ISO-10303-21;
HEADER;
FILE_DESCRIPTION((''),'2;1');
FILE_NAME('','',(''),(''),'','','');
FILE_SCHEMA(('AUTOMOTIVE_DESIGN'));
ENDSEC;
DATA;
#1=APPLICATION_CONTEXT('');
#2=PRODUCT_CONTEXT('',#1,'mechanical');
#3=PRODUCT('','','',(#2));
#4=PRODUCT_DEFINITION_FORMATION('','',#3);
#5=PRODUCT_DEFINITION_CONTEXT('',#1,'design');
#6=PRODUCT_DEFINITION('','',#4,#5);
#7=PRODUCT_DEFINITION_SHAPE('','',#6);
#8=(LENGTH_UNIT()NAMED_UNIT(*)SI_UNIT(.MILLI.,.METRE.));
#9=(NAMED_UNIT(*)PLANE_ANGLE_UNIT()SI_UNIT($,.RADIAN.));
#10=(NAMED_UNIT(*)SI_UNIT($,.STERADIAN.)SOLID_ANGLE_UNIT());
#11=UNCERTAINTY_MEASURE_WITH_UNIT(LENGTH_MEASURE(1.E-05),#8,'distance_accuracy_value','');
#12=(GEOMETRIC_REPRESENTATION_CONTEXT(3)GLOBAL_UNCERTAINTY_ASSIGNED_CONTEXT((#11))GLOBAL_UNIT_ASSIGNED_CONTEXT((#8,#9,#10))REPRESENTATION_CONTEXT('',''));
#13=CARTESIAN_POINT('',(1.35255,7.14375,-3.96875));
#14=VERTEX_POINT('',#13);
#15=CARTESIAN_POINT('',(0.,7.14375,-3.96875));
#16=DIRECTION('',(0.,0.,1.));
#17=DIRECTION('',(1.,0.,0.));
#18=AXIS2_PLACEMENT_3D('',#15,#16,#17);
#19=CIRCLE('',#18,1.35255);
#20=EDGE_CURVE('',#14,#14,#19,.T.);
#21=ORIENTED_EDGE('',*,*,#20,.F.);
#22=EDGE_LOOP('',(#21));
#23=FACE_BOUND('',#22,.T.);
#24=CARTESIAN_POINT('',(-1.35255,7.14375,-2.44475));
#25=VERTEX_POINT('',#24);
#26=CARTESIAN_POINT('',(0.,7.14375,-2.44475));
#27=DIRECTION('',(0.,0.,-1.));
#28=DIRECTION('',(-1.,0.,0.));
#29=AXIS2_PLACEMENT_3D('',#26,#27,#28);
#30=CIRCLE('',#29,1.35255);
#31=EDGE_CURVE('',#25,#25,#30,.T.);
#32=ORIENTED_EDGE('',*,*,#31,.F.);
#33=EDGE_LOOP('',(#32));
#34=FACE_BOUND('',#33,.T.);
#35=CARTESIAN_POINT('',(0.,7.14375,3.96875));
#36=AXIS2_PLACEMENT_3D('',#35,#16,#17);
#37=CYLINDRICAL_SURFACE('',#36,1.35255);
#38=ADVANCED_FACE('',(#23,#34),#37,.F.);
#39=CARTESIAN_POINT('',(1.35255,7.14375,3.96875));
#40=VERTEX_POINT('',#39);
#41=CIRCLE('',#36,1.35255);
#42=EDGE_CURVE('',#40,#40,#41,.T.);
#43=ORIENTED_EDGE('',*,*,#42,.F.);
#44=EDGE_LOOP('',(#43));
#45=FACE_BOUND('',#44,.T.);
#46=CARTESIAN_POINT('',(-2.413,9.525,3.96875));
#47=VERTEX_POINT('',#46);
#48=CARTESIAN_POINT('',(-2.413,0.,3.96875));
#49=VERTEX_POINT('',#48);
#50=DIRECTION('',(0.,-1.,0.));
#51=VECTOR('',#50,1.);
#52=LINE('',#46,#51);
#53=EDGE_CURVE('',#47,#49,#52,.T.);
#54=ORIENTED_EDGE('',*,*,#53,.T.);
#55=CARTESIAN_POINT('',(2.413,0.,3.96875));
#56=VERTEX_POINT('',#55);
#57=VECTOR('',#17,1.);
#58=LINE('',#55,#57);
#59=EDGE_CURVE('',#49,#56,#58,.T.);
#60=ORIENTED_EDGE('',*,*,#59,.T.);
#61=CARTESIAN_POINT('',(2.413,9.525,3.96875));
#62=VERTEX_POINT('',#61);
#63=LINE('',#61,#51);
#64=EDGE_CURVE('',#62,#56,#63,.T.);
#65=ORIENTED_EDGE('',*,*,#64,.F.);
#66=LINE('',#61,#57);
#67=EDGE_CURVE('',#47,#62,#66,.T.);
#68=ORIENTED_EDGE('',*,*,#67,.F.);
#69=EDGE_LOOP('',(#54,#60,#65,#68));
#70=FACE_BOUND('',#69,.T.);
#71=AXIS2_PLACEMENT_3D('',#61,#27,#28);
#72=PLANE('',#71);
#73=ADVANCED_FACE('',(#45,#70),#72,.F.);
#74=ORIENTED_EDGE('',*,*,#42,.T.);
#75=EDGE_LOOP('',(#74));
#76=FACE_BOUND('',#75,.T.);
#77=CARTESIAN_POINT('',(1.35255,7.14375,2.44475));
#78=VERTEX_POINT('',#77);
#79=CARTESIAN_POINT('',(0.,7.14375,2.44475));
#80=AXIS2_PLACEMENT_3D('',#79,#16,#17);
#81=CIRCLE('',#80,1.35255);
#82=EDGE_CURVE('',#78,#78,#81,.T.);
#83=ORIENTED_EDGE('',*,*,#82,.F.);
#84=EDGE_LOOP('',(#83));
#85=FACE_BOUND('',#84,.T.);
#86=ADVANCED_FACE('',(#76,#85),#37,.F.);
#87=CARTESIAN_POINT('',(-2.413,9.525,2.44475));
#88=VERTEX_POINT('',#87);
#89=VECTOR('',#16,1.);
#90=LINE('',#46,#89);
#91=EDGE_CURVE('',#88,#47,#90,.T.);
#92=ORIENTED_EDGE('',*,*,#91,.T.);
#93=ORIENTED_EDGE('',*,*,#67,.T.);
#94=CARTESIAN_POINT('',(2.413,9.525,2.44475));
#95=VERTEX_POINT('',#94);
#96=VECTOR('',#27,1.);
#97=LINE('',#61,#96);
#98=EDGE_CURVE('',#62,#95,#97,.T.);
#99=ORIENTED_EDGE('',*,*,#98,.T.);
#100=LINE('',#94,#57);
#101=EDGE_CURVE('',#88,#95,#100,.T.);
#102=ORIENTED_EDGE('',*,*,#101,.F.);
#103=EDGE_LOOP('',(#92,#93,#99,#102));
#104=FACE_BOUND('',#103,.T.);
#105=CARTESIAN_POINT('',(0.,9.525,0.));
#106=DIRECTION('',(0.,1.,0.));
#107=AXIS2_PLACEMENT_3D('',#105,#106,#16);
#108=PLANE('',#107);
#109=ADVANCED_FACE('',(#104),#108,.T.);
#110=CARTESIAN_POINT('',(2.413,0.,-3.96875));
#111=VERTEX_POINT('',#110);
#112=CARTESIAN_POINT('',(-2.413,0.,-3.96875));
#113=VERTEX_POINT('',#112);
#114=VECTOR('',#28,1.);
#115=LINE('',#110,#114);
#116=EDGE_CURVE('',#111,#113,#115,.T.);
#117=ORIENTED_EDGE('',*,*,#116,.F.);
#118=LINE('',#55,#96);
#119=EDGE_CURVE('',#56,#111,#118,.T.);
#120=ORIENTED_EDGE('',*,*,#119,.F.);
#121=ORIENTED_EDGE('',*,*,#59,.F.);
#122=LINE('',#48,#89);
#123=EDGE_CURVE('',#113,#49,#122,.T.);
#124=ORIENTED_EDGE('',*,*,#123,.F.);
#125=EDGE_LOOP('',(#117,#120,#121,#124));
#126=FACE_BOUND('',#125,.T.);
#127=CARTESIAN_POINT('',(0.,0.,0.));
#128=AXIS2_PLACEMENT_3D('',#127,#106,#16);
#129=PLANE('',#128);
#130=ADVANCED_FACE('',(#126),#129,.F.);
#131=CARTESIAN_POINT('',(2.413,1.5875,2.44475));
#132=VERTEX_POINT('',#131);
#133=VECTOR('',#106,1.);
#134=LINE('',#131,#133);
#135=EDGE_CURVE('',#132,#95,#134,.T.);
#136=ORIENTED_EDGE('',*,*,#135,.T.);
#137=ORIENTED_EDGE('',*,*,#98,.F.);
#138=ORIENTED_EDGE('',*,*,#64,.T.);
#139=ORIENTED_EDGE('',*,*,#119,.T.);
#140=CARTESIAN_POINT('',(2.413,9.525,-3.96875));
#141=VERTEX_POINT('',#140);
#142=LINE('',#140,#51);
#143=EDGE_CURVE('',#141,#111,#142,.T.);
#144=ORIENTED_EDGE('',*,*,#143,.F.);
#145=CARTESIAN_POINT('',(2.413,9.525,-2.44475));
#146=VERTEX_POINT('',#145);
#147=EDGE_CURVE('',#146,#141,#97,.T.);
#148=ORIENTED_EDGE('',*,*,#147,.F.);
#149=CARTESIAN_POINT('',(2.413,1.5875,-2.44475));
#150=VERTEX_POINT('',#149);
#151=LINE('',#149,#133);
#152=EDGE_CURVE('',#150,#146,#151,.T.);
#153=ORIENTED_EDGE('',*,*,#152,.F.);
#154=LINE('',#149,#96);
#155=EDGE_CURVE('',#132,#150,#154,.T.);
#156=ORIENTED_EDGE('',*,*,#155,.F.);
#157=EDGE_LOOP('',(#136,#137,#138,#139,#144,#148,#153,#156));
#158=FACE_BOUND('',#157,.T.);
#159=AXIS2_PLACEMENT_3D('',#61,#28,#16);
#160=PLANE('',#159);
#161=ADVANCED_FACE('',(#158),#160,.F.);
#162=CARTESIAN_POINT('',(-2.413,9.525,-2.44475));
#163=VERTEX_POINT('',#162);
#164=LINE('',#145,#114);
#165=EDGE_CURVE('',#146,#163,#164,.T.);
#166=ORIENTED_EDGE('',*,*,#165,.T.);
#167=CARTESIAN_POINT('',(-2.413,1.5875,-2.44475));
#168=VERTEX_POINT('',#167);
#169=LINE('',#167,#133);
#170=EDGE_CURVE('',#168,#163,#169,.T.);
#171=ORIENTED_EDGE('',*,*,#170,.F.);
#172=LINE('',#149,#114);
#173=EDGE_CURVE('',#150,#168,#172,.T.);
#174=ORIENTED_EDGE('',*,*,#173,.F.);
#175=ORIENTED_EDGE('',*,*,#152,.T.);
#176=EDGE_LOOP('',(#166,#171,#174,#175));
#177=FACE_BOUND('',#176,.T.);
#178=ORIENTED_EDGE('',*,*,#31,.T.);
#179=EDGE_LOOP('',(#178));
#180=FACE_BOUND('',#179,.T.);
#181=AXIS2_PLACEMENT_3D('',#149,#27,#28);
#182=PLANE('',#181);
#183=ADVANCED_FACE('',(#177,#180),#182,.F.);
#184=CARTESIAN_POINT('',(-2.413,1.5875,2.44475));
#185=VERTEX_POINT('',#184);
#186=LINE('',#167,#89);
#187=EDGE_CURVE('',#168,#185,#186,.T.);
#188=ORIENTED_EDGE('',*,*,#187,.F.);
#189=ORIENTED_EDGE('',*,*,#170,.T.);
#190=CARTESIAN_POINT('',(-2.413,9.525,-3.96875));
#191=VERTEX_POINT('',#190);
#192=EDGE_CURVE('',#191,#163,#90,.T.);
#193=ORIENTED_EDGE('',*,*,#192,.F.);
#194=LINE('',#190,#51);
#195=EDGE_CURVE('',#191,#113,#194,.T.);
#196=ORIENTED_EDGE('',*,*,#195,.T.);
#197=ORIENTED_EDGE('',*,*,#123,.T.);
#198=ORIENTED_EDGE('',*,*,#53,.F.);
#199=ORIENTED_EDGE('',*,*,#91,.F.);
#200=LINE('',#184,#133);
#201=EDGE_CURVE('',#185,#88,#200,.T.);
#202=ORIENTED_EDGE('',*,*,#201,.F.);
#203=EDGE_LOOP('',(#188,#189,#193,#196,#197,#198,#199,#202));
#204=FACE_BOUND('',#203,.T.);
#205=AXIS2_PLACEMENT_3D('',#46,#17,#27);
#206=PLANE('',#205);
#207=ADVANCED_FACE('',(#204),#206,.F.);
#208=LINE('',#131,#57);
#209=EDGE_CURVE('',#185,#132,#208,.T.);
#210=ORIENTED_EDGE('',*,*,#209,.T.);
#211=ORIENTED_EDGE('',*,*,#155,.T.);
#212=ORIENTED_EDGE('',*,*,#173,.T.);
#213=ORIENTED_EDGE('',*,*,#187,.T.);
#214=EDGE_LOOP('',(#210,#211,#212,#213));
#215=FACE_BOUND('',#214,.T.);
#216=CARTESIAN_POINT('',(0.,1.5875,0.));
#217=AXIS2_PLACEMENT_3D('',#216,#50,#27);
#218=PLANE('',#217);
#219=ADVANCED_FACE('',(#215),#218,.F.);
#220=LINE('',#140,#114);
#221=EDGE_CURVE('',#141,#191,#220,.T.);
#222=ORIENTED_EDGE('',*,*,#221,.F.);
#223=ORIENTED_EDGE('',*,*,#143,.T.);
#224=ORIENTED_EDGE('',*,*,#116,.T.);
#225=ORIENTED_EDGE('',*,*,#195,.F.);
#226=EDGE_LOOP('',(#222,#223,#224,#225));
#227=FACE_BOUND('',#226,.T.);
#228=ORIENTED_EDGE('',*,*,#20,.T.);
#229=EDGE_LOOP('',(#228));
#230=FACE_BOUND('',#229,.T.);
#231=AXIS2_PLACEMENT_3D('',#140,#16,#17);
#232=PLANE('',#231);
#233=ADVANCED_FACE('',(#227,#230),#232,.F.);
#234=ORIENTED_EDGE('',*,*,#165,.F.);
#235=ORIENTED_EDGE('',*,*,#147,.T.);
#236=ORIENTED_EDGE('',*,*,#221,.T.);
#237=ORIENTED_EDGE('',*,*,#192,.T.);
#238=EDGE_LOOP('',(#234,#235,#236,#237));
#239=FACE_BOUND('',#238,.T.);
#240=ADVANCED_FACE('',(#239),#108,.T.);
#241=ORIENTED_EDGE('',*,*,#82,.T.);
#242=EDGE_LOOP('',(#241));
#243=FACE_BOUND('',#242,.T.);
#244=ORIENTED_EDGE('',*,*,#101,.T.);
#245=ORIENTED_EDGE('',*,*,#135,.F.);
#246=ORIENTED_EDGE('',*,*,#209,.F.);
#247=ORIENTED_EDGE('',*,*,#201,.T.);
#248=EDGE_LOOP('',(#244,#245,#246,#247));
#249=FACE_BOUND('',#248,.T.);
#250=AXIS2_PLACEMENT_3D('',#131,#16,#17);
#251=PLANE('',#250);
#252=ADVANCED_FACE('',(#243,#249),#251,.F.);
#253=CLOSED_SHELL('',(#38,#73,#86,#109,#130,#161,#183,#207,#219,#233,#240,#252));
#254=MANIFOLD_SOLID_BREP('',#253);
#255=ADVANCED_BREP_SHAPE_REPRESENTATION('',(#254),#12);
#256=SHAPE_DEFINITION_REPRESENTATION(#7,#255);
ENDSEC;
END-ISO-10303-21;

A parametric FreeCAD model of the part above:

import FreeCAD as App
import Part
import Sketcher

V = App.Vector
Q = App.Units.Quantity

doc = App.newDocument("Part")
params = doc.addObject("Spreadsheet::Sheet", "Params")
for row, (alias, value) in enumerate([
    ("sketch1_width", "0.19 in"),
    ("sketch1_height", "0.3125 in"),
    ("pad1_length", "0.375 in"),
    ("sketch2_width", "0.19 in"),
    ("pocket1_length", "0.3125 in"),
    ("hole_diameter", "0.1065 in"),
    ("hole_depth", "0.37 in"),
], start=1):
    params.set(f"A{row}", alias)
    params.set(f"B{row}", "=" + value)
    params.setAlias(f"B{row}", alias)

body = doc.addObject("PartDesign::Body", "Body")

# Sketch on XZ plane
sketch1 = body.newObject("Sketcher::SketchObject", "Sketch")
sketch1.AttachmentSupport = (doc.getObject("XZ_Plane"), [""])
sketch1.MapMode = "FlatFace"
sketch1.addGeometry(Part.LineSegment(V(-2.4, -4, 0), V(-2.4, 4, 0)), False)
sketch1.addGeometry(Part.LineSegment(V(-2.4, 4, 0), V(2.4, 4, 0)), False)
sketch1.addGeometry(Part.LineSegment(V(2.4, 4, 0), V(2.4, -4, 0)), False)
sketch1.addGeometry(Part.LineSegment(V(2.4, -4, 0), V(-2.4, -4, 0)), False)
sketch1.addConstraint(Sketcher.Constraint("Coincident", 0, 2, 1, 1))
sketch1.addConstraint(Sketcher.Constraint("Coincident", 1, 2, 2, 1))
sketch1.addConstraint(Sketcher.Constraint("Coincident", 2, 2, 3, 1))
sketch1.addConstraint(Sketcher.Constraint("Coincident", 3, 2, 0, 1))
sketch1.addConstraint(Sketcher.Constraint("Vertical", 0))
sketch1.addConstraint(Sketcher.Constraint("Horizontal", 1))
sketch1.addConstraint(Sketcher.Constraint("Vertical", 2))
sketch1.addConstraint(Sketcher.Constraint("Horizontal", 3))
sketch1.addConstraint(Sketcher.Constraint("Symmetric", 0, 2, 2, 2, -1, 1))
sketch1.addConstraint(Sketcher.Constraint("DistanceX", 1, 1, 1, 2, Q("0.19 in")))
sketch1.addConstraint(Sketcher.Constraint("DistanceY", 0, 1, 0, 2, Q("0.3125 in")))
sketch1.setExpression("Constraints[9]", "Params.sketch1_width")
sketch1.setExpression("Constraints[10]", "Params.sketch1_height")
pad1 = body.newObject("PartDesign::Pad", "Pad")
pad1.Profile = sketch1
pad1.setExpression("Length", "Params.pad1_length")
pad1.Reversed = True

# Sketch on XZ plane
sketch2 = body.newObject("Sketcher::SketchObject", "Sketch001")
sketch2.AttachmentSupport = (doc.getObject("XZ_Plane"), [""])
sketch2.MapMode = "FlatFace"
sketch2.AttachmentOffset = App.Placement(V(0, 0, -0.375 * 25.4), App.Rotation())
sketch2.addGeometry(Part.LineSegment(V(-2.4, -2.4, 0), V(-2.4, 2.4, 0)), False)
sketch2.addGeometry(Part.LineSegment(V(-2.4, 2.4, 0), V(2.4, 2.4, 0)), False)
sketch2.addGeometry(Part.LineSegment(V(2.4, 2.4, 0), V(2.4, -2.4, 0)), False)
sketch2.addGeometry(Part.LineSegment(V(2.4, -2.4, 0), V(-2.4, -2.4, 0)), False)
sketch2.addConstraint(Sketcher.Constraint("Coincident", 0, 2, 1, 1))
sketch2.addConstraint(Sketcher.Constraint("Coincident", 1, 2, 2, 1))
sketch2.addConstraint(Sketcher.Constraint("Coincident", 2, 2, 3, 1))
sketch2.addConstraint(Sketcher.Constraint("Coincident", 3, 2, 0, 1))
sketch2.addConstraint(Sketcher.Constraint("Vertical", 0))
sketch2.addConstraint(Sketcher.Constraint("Horizontal", 1))
sketch2.addConstraint(Sketcher.Constraint("Vertical", 2))
sketch2.addConstraint(Sketcher.Constraint("Horizontal", 3))
sketch2.addConstraint(Sketcher.Constraint("Symmetric", 0, 2, 2, 2, -1, 1))
sketch2.addConstraint(Sketcher.Constraint("DistanceX", 1, 1, 1, 2, Q("0.19 in")))
sketch2.addConstraint(Sketcher.Constraint("DistanceY", 0, 1, 0, 2, Q("0.1925 in")))
sketch2.setExpression("Constraints[9]", "Params.sketch2_width")
pocket1 = body.newObject("PartDesign::Pocket", "Pocket")
pocket1.Profile = sketch2
pocket1.setExpression("Length", "Params.pocket1_length")
pocket1.Reversed = True

# Sketch on XY plane
sketch3 = body.newObject("Sketcher::SketchObject", "Sketch002")
sketch3.AttachmentSupport = (doc.getObject("XY_Plane"), [""])
sketch3.MapMode = "FlatFace"
sketch3.AttachmentOffset = App.Placement(V(0, 0, 0.15625 * 25.4), App.Rotation())
sketch3.addGeometry(Part.Circle(V(0, 7.1, 0), V(0, 0, 1), 1.4), False)
sketch3.addConstraint(Sketcher.Constraint("PointOnObject", 0, 3, -2))
sketch3.addConstraint(Sketcher.Constraint("Diameter", 0, Q("0.1065 in")))
sketch3.addConstraint(Sketcher.Constraint("DistanceY", -1, 1, 0, 3, Q("0.28125 in")))
doc.recompute()
hole = body.newObject("PartDesign::Hole", "Hole")
hole.Profile = sketch3
hole.ThreadType = "None"
hole.setExpression("Diameter", "Params.hole_diameter")
hole.DepthType = "Dimension"
hole.setExpression("Depth", "Params.hole_depth")
hole.DrillPoint = "Flat"

doc.recompute()
